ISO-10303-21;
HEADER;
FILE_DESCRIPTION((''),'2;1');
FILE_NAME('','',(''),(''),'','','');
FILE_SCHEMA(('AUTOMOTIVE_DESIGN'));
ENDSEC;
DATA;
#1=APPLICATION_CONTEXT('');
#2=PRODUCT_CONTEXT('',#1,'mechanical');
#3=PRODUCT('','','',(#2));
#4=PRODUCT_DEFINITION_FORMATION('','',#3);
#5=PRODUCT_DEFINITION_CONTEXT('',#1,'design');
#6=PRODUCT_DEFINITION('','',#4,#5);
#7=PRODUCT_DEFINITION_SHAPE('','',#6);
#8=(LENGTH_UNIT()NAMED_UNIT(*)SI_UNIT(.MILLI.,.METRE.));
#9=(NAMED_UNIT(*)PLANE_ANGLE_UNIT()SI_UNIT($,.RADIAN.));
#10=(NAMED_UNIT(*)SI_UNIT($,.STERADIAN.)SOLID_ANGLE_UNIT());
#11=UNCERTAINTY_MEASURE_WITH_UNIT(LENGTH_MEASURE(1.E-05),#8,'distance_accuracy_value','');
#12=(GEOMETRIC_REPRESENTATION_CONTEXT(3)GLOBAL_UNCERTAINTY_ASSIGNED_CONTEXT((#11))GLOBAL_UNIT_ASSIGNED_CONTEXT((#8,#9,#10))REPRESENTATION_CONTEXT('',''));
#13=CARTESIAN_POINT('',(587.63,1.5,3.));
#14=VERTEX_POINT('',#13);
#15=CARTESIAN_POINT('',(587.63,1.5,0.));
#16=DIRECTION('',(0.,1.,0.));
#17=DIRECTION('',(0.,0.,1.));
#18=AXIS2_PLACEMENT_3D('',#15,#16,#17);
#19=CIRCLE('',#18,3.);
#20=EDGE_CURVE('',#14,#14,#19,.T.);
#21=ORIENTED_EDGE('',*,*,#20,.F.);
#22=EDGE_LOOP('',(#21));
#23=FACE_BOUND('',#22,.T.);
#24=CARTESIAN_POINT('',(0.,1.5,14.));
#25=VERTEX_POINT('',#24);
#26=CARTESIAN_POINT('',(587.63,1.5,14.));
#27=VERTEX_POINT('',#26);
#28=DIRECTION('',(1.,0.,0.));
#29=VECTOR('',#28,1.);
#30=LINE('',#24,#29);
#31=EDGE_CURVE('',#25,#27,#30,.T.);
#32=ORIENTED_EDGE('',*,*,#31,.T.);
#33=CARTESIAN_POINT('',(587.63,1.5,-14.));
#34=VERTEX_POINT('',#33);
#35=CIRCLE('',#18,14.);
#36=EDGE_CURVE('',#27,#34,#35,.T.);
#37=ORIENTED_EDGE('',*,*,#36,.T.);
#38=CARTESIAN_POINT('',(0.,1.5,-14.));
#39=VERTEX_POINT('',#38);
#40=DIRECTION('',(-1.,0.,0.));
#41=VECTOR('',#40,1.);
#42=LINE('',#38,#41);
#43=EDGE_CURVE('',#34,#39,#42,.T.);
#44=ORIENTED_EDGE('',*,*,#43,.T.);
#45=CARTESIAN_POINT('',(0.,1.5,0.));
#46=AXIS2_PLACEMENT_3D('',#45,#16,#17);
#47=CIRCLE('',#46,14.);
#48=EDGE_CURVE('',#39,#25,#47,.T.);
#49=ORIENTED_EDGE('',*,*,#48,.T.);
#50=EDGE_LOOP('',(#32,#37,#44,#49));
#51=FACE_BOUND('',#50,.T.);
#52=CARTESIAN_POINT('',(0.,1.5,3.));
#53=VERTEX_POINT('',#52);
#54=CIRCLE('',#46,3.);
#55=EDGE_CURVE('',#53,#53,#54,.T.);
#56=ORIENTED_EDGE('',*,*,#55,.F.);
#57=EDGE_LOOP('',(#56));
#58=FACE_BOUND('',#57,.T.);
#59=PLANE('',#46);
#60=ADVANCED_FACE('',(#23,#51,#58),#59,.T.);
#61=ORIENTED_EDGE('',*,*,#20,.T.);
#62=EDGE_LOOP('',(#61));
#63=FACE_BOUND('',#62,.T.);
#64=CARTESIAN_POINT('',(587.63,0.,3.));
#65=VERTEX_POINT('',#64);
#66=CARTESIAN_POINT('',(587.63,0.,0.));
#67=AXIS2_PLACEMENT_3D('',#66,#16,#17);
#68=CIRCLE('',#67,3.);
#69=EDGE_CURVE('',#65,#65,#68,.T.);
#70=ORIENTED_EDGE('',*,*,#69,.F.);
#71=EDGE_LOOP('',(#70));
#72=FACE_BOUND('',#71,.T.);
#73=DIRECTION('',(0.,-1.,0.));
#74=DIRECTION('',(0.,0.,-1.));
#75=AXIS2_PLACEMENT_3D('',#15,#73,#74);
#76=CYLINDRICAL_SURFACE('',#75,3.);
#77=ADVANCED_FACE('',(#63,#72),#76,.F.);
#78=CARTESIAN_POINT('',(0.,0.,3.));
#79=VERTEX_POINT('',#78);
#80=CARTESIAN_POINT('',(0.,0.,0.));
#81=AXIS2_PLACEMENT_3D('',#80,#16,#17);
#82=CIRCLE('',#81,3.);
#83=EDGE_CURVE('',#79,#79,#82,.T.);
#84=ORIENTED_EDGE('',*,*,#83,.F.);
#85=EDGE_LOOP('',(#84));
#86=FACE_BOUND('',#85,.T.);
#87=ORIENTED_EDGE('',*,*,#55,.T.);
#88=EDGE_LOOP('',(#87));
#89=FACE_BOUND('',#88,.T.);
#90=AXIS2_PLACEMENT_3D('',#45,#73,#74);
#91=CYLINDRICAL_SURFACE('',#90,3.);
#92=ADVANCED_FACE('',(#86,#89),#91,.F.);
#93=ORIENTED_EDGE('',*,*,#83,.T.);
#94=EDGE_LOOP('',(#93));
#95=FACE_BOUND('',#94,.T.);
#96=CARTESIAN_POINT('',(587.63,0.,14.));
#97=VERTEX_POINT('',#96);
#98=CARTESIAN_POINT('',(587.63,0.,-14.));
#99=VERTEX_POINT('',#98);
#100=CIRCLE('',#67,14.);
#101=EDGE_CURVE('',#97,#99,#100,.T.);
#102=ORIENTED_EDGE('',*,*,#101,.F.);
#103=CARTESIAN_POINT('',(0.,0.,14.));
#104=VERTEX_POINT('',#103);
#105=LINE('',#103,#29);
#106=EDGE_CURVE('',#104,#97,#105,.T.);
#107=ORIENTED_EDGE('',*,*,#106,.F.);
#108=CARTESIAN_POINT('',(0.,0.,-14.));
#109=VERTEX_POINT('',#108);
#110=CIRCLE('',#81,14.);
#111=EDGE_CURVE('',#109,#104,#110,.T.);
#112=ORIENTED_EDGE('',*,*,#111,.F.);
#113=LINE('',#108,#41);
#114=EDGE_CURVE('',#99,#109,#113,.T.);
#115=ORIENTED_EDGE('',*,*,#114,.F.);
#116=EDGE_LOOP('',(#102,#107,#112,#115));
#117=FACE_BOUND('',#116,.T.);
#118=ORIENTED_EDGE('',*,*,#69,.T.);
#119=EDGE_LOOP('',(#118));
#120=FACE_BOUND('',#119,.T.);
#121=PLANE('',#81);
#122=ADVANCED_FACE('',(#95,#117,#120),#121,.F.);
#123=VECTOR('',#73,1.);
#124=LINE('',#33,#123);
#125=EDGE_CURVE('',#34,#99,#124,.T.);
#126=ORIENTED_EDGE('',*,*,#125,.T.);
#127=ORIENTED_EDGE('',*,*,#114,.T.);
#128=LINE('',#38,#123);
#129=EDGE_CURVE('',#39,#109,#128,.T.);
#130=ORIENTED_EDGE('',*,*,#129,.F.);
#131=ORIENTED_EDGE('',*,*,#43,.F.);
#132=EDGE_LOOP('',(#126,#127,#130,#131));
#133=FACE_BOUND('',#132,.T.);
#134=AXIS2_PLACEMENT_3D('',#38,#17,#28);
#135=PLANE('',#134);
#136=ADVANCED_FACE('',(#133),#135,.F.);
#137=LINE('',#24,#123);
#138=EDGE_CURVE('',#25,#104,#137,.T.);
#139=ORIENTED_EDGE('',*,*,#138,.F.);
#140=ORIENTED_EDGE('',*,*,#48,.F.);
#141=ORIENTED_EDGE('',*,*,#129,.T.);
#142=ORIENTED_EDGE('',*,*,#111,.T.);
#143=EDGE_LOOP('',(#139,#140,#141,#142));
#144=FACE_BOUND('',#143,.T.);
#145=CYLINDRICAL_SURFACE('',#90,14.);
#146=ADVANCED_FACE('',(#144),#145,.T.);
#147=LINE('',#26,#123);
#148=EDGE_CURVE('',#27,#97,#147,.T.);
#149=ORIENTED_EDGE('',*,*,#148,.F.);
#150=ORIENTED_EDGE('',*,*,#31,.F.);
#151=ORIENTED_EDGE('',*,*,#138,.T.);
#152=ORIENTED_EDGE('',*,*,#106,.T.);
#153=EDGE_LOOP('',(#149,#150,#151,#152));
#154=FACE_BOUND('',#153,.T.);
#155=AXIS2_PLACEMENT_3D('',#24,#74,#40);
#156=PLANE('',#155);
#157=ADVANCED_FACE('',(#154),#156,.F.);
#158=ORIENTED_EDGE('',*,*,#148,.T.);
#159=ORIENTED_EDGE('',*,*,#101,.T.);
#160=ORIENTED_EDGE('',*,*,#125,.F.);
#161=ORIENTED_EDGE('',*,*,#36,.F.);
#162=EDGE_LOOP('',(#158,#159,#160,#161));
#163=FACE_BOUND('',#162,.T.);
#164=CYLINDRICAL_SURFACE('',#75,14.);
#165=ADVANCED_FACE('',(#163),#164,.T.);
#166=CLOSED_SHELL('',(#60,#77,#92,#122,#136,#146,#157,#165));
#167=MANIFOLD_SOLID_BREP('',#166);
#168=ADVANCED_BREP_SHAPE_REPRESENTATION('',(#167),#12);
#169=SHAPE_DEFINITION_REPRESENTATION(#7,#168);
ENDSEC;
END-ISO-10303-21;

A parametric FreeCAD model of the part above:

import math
import FreeCAD as App
import Part
import Sketcher
from FreeCAD import Vector

doc = App.newDocument("Part")
params = doc.addObject("Spreadsheet::Sheet", "Params")
for row, (alias, value) in enumerate([
    ("sketch1_diameter", "6 mm"),
    ("sketch1_radius", "14 mm"),
    ("sketch1_width", "587.63 mm"),
    ("pad1_length", "1.5 mm"),
], start=1):
    params.set(f"A{row}", alias)
    params.set(f"B{row}", "=" + value)
    params.setAlias(f"B{row}", alias)

body = doc.addObject("PartDesign::Body", "Body")

# Sketch on XZ plane
sketch1 = doc.addObject("Sketcher::SketchObject", "Sketch")
body.addObject(sketch1)
sketch1.AttachmentSupport = (doc.XZ_Plane, [""])
sketch1.MapMode = "FlatFace"
sketch1.addGeometry([
    Part.LineSegment(Vector(587.6, -14, 0), Vector(0, -14, 0)),  # 0
    Part.ArcOfCircle(Part.Circle(Vector(0, 0, 0), Vector(0, 0, 1), 14), math.radians(90), math.radians(270)),  # 1
    Part.LineSegment(Vector(0, 14, 0), Vector(587.6, 14, 0)),  # 2
    Part.ArcOfCircle(Part.Circle(Vector(587.6, 0, 0), Vector(0, 0, 1), 14), math.radians(-90), math.radians(90)),  # 3
    Part.Circle(Vector(587.6, 0, 0), Vector(0, 0, 1), 3),  # 4
    Part.Circle(Vector(0, 0, 0), Vector(0, 0, 1), 3),  # 5
], False)
sketch1.addConstraint([
    Sketcher.Constraint("Tangent", 0, 2, 1, 2),
    Sketcher.Constraint("Tangent", 1, 1, 2, 1),
    Sketcher.Constraint("Tangent", 2, 2, 3, 2),
    Sketcher.Constraint("Tangent", 3, 1, 0, 1),
    Sketcher.Constraint("Horizontal", 0),
    Sketcher.Constraint("Horizontal", 2),
    Sketcher.Constraint("Coincident", 1, 3, -1, 1),
    Sketcher.Constraint("Coincident", 5, 3, -1, 1),
    Sketcher.Constraint("Coincident", 4, 3, 3, 3),
    Sketcher.Constraint("Equal", 4, 5),
    Sketcher.Constraint("Diameter", 4, 6.0),
    Sketcher.Constraint("Radius", 1, 14.0),
    Sketcher.Constraint("DistanceX", 0, 2, 0, 1, 587.63),
])
sketch1.setExpression("Constraints[10]", "Params.sketch1_diameter")
sketch1.setExpression("Constraints[11]", "Params.sketch1_radius")
sketch1.setExpression("Constraints[12]", "Params.sketch1_width")
pad1 = doc.addObject("PartDesign::Pad", "Pad")
body.addObject(pad1)
pad1.Profile = sketch1
pad1.setExpression("Length", "Params.pad1_length")
pad1.Reversed = True

doc.recompute()
